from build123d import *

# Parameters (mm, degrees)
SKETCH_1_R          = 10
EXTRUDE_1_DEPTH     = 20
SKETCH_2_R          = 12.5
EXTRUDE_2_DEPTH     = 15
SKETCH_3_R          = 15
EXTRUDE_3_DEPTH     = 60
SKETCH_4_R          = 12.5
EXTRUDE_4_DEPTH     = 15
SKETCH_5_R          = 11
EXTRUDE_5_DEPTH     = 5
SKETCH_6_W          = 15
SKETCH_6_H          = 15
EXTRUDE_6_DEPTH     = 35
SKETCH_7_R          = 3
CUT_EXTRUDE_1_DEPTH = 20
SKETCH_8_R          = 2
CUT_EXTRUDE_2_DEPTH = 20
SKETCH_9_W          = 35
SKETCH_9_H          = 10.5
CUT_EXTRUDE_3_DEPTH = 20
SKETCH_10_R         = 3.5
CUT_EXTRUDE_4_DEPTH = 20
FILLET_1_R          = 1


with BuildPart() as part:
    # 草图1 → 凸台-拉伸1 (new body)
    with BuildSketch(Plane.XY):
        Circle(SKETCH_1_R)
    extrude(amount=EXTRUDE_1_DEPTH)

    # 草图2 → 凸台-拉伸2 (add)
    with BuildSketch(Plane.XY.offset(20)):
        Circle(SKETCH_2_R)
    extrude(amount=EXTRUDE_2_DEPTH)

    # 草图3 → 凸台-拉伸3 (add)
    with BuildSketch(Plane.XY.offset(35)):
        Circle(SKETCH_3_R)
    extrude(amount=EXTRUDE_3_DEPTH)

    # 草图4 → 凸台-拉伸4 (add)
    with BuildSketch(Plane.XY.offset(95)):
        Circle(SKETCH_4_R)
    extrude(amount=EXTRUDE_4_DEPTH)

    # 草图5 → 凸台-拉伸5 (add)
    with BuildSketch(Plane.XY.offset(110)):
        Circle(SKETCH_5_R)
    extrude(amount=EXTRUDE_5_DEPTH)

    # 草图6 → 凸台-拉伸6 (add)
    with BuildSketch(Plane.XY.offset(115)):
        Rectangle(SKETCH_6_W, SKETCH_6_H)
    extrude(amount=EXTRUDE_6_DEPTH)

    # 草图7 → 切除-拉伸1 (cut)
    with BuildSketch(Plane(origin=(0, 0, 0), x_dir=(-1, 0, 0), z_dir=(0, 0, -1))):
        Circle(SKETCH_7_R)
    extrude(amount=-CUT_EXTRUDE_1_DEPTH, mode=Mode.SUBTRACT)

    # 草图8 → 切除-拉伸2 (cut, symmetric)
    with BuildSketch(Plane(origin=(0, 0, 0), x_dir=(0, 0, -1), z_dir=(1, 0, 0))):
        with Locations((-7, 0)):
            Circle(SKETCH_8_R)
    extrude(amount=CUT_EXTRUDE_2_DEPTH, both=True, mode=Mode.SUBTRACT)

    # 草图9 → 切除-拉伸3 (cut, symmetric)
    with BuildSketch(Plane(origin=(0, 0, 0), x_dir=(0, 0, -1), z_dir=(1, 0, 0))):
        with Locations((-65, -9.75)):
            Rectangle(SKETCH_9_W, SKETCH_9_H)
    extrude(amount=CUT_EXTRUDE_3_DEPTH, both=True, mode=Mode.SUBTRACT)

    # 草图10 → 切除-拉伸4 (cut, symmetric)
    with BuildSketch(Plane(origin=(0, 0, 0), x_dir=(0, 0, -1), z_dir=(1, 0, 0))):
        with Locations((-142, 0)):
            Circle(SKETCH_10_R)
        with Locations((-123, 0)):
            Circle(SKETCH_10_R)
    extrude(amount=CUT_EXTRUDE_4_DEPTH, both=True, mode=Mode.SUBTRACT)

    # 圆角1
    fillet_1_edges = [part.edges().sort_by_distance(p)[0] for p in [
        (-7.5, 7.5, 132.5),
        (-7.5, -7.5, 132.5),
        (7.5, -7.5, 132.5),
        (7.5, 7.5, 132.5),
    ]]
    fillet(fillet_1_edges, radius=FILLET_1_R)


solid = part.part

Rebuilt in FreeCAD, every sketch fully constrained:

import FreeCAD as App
import Part
import Sketcher

V = App.Vector
Q = App.Units.Quantity


def edges_at(feature, points):
    """Names of the edges that pass closest to the given points."""
    edges = feature.Shape.Edges
    near = lambda p: min(range(len(edges)), key=lambda i: edges[i].distToShape(Part.Vertex(*p))[0])
    return sorted({f"Edge{near(p) + 1}" for p in points})


def add_polygon(sketch, points):
    """Adds a closed chain of lines whose ends are joined by coincident constraints."""
    first, n = sketch.GeometryCount, len(points)
    for a, b in zip(points, points[1:] + points[:1]):
        sketch.addGeometry(Part.LineSegment(App.Vector(*a, 0), App.Vector(*b, 0)), False)
    for i in range(n):
        sketch.addConstraint(Sketcher.Constraint("Coincident", first + i, 2, first + (i + 1) % n, 1))

doc = App.newDocument("Part")
params = doc.addObject("Spreadsheet::Sheet", "Params")
for row, (alias, value) in enumerate([
    ("sketch1_diameter", "20 mm"),
    ("pad1_length", "20 mm"),
    ("sketch2_diameter", "25 mm"),
    ("pad2_length", "15 mm"),
    ("sketch3_diameter", "30 mm"),
    ("pad3_length", "60 mm"),
    ("sketch4_diameter", "25 mm"),
    ("pad4_length", "15 mm"),
    ("sketch5_diameter", "22 mm"),
    ("pad5_length", "5 mm"),
    ("sketch6_width", "15 mm"),
    ("pad6_length", "35 mm"),
    ("sketch7_diameter", "6 mm"),
    ("pocket1_length", "20 mm"),
    ("sketch8_diameter", "4 mm"),
    ("pocket2_length", "40 mm"),
    ("sketch9_height", "35 mm"),
    ("sketch9_width", "10.5 mm"),
    ("pocket3_length", "40 mm"),
    ("sketch10_diameter", "7 mm"),
    ("pocket4_length", "40 mm"),
    ("fillet_radius", "1 mm"),
], start=1):
    params.set(f"A{row}", alias)
    params.set(f"B{row}", "=" + value)
    params.setAlias(f"B{row}", alias)

body = doc.addObject("PartDesign::Body", "Body")

sketch1 = doc.addObject("Sketcher::SketchObject", "Sketch")
body.addObject(sketch1)
sketch1.AttachmentSupport = (doc.XY_Plane, [""])
sketch1.MapMode = "FlatFace"
sketch1.addGeometry(Part.Circle(V(0, 0, 0), V(0, 0, 1), 10), False)
sketch1.addConstraint(Sketcher.Constraint("Coincident", 0, 3, -1, 1))
sketch1.addConstraint(Sketcher.Constraint("Diameter", 0, Q("20 mm")))
sketch1.setExpression("Constraints[1]", "Params.sketch1_diameter")
pad1 = doc.addObject("PartDesign::Pad", "Pad")
body.addObject(pad1)
pad1.Profile = sketch1
pad1.setExpression("Length", "Params.pad1_length")

sketch2 = doc.addObject("Sketcher::SketchObject", "Sketch001")
body.addObject(sketch2)
sketch2.AttachmentSupport = (doc.XY_Plane, [""])
sketch2.MapMode = "FlatFace"
sketch2.AttachmentOffset = App.Placement(V(0, 0, 20), App.Rotation())
sketch2.addGeometry(Part.Circle(V(0, 0, 0), V(0, 0, 1), 12), False)
sketch2.addConstraint(Sketcher.Constraint("Coincident", 0, 3, -1, 1))
sketch2.addConstraint(Sketcher.Constraint("Diameter", 0, Q("25 mm")))
sketch2.setExpression("Constraints[1]", "Params.sketch2_diameter")
pad2 = doc.addObject("PartDesign::Pad", "Pad001")
body.addObject(pad2)
pad2.Profile = sketch2
pad2.setExpression("Length", "Params.pad2_length")

sketch3 = doc.addObject("Sketcher::SketchObject", "Sketch002")
body.addObject(sketch3)
sketch3.AttachmentSupport = (doc.XY_Plane, [""])
sketch3.MapMode = "FlatFace"
sketch3.AttachmentOffset = App.Placement(V(0, 0, 35), App.Rotation())
sketch3.addGeometry(Part.Circle(V(0, 0, 0), V(0, 0, 1), 15), False)
sketch3.addConstraint(Sketcher.Constraint("Coincident", 0, 3, -1, 1))
sketch3.addConstraint(Sketcher.Constraint("Diameter", 0, Q("30 mm")))
sketch3.setExpression("Constraints[1]", "Params.sketch3_diameter")
pad3 = doc.addObject("PartDesign::Pad", "Pad002")
body.addObject(pad3)
pad3.Profile = sketch3
pad3.setExpression("Length", "Params.pad3_length")

sketch4 = doc.addObject("Sketcher::SketchObject", "Sketch003")
body.addObject(sketch4)
sketch4.AttachmentSupport = (doc.XY_Plane, [""])
sketch4.MapMode = "FlatFace"
sketch4.AttachmentOffset = App.Placement(V(0, 0, 95), App.Rotation())
sketch4.addGeometry(Part.Circle(V(0, 0, 0), V(0, 0, 1), 12), False)
sketch4.addConstraint(Sketcher.Constraint("Coincident", 0, 3, -1, 1))
sketch4.addConstraint(Sketcher.Constraint("Diameter", 0, Q("25 mm")))
sketch4.setExpression("Constraints[1]", "Params.sketch4_diameter")
pad4 = doc.addObject("PartDesign::Pad", "Pad003")
body.addObject(pad4)
pad4.Profile = sketch4
pad4.setExpression("Length", "Params.pad4_length")

sketch5 = doc.addObject("Sketcher::SketchObject", "Sketch004")
body.addObject(sketch5)
sketch5.AttachmentSupport = (doc.XY_Plane, [""])
sketch5.MapMode = "FlatFace"
sketch5.AttachmentOffset = App.Placement(V(0, 0, 110), App.Rotation())
sketch5.addGeometry(Part.Circle(V(0, 0, 0), V(0, 0, 1), 11), False)
sketch5.addConstraint(Sketcher.Constraint("Coincident", 0, 3, -1, 1))
sketch5.addConstraint(Sketcher.Constraint("Diameter", 0, Q("22 mm")))
sketch5.setExpression("Constraints[1]", "Params.sketch5_diameter")
pad5 = doc.addObject("PartDesign::Pad", "Pad004")
body.addObject(pad5)
pad5.Profile = sketch5
pad5.setExpression("Length", "Params.pad5_length")

sketch6 = doc.addObject("Sketcher::SketchObject", "Sketch005")
body.addObject(sketch6)
sketch6.AttachmentSupport = (doc.XY_Plane, [""])
sketch6.MapMode = "FlatFace"
sketch6.AttachmentOffset = App.Placement(V(0, 0, 115), App.Rotation())
add_polygon(sketch6, [(-8, 8), (-8, -8), (8, -8), (8, 8)])
sketch6.addConstraint(Sketcher.Constraint("Vertical", 0))
sketch6.addConstraint(Sketcher.Constraint("Horizontal", 1))
sketch6.addConstraint(Sketcher.Constraint("Vertical", 2))
sketch6.addConstraint(Sketcher.Constraint("Horizontal", 3))
sketch6.addConstraint(Sketcher.Constraint("Symmetric", 0, 2, 2, 2, -1, 1))
sketch6.addConstraint(Sketcher.Constraint("Equal", 3, 0))
sketch6.addConstraint(Sketcher.Constraint("DistanceX", 1, 1, 1, 2, Q("15 mm")))
sketch6.setExpression("Constraints[10]", "Params.sketch6_width")
pad6 = doc.addObject("PartDesign::Pad", "Pad005")
body.addObject(pad6)
pad6.Profile = sketch6
pad6.setExpression("Length", "Params.pad6_length")

sketch7 = doc.addObject("Sketcher::SketchObject", "Sketch006")
body.addObject(sketch7)
sketch7.AttachmentSupport = (doc.XY_Plane, [""])
sketch7.MapMode = "FlatFace"
sketch7.addGeometry(Part.Circle(V(0, 0, 0), V(0, 0, 1), 3), False)
sketch7.addConstraint(Sketcher.Constraint("Coincident", 0, 3, -1, 1))
sketch7.addConstraint(Sketcher.Constraint("Diameter", 0, Q("6 mm")))
sketch7.setExpression("Constraints[1]", "Params.sketch7_diameter")
pocket1 = doc.addObject("PartDesign::Pocket", "Pocket")
body.addObject(pocket1)
pocket1.Profile = sketch7
pocket1.setExpression("Length", "Params.pocket1_length")
pocket1.Reversed = True

sketch8 = doc.addObject("Sketcher::SketchObject", "Sketch007")
body.addObject(sketch8)
sketch8.AttachmentSupport = (doc.YZ_Plane, [""])
sketch8.MapMode = "FlatFace"
sketch8.addGeometry(Part.Circle(V(0, 7, 0), V(0, 0, 1), 2), False)
sketch8.addConstraint(Sketcher.Constraint("PointOnObject", 0, 3, -2))
sketch8.addConstraint(Sketcher.Constraint("Diameter", 0, Q("4 mm")))
sketch8.addConstraint(Sketcher.Constraint("DistanceY", -1, 1, 0, 3, Q("7 mm")))
sketch8.setExpression("Constraints[1]", "Params.sketch8_diameter")
pocket2 = doc.addObject("PartDesign::Pocket", "Pocket001")
body.addObject(pocket2)
pocket2.Profile = sketch8
pocket2.setExpression("Length", "Params.pocket2_length")
pocket2.Midplane = True

sketch9 = doc.addObject("Sketcher::SketchObject", "Sketch008")
body.addObject(sketch9)
sketch9.AttachmentSupport = (doc.YZ_Plane, [""])
sketch9.MapMode = "FlatFace"
add_polygon(sketch9, [(-4, 82), (-15, 82), (-15, 48), (-4, 48)])
sketch9.addConstraint(Sketcher.Constraint("Horizontal", 0))
sketch9.addConstraint(Sketcher.Constraint("Vertical", 1))
sketch9.addConstraint(Sketcher.Constraint("Horizontal", 2))
sketch9.addConstraint(Sketcher.Constraint("Vertical", 3))
sketch9.addConstraint(Sketcher.Constraint("DistanceY", 1, 2, 1, 1, Q("35 mm")))
sketch9.addConstraint(Sketcher.Constraint("DistanceX", 0, 2, 0, 1, Q("10.5 mm")))
sketch9.addConstraint(Sketcher.Constraint("DistanceX", 0, 2, -1, 1, Q("15 mm")))
sketch9.addConstraint(Sketcher.Constraint("DistanceY", -1, 1, 0, 2, Q("82.5 mm")))
sketch9.setExpression("Constraints[8]", "Params.sketch9_height")
sketch9.setExpression("Constraints[9]", "Params.sketch9_width")
pocket3 = doc.addObject("PartDesign::Pocket", "Pocket002")
body.addObject(pocket3)
pocket3.Profile = sketch9
pocket3.setExpression("Length", "Params.pocket3_length")
pocket3.Midplane = True

sketch10 = doc.addObject("Sketcher::SketchObject", "Sketch009")
body.addObject(sketch10)
sketch10.AttachmentSupport = (doc.YZ_Plane, [""])
sketch10.MapMode = "FlatFace"
sketch10.addGeometry(Part.Circle(V(0, 142, 0), V(0, 0, 1), 3.5), False)
sketch10.addGeometry(Part.Circle(V(0, 123, 0), V(0, 0, 1), 3.5), False)
sketch10.addConstraint(Sketcher.Constraint("Equal", 0, 1))
sketch10.addConstraint(Sketcher.Constraint("PointOnObject", 0, 3, -2))
sketch10.addConstraint(Sketcher.Constraint("PointOnObject", 1, 3, -2))
sketch10.addConstraint(Sketcher.Constraint("Diameter", 0, Q("7 mm")))
sketch10.addConstraint(Sketcher.Constraint("DistanceY", -1, 1, 0, 3, Q("142 mm")))
sketch10.addConstraint(Sketcher.Constraint("DistanceY", -1, 1, 1, 3, Q("123 mm")))
sketch10.setExpression("Constraints[3]", "Params.sketch10_diameter")
pocket4 = doc.addObject("PartDesign::Pocket", "Pocket003")
body.addObject(pocket4)
pocket4.Profile = sketch10
pocket4.setExpression("Length", "Params.pocket4_length")
pocket4.Midplane = True
doc.recompute()

fillet = doc.addObject("PartDesign::Fillet", "Fillet")
body.addObject(fillet)
fillet.Base = (pocket4, edges_at(pocket4, [
    (-7.5, 7.5, 132.5),
    (-7.5, -7.5, 132.5),
    (7.5, -7.5, 132.5),
    (7.5, 7.5, 132.5),
]))
fillet.setExpression("Radius", "Params.fillet_radius")

doc.recompute()
